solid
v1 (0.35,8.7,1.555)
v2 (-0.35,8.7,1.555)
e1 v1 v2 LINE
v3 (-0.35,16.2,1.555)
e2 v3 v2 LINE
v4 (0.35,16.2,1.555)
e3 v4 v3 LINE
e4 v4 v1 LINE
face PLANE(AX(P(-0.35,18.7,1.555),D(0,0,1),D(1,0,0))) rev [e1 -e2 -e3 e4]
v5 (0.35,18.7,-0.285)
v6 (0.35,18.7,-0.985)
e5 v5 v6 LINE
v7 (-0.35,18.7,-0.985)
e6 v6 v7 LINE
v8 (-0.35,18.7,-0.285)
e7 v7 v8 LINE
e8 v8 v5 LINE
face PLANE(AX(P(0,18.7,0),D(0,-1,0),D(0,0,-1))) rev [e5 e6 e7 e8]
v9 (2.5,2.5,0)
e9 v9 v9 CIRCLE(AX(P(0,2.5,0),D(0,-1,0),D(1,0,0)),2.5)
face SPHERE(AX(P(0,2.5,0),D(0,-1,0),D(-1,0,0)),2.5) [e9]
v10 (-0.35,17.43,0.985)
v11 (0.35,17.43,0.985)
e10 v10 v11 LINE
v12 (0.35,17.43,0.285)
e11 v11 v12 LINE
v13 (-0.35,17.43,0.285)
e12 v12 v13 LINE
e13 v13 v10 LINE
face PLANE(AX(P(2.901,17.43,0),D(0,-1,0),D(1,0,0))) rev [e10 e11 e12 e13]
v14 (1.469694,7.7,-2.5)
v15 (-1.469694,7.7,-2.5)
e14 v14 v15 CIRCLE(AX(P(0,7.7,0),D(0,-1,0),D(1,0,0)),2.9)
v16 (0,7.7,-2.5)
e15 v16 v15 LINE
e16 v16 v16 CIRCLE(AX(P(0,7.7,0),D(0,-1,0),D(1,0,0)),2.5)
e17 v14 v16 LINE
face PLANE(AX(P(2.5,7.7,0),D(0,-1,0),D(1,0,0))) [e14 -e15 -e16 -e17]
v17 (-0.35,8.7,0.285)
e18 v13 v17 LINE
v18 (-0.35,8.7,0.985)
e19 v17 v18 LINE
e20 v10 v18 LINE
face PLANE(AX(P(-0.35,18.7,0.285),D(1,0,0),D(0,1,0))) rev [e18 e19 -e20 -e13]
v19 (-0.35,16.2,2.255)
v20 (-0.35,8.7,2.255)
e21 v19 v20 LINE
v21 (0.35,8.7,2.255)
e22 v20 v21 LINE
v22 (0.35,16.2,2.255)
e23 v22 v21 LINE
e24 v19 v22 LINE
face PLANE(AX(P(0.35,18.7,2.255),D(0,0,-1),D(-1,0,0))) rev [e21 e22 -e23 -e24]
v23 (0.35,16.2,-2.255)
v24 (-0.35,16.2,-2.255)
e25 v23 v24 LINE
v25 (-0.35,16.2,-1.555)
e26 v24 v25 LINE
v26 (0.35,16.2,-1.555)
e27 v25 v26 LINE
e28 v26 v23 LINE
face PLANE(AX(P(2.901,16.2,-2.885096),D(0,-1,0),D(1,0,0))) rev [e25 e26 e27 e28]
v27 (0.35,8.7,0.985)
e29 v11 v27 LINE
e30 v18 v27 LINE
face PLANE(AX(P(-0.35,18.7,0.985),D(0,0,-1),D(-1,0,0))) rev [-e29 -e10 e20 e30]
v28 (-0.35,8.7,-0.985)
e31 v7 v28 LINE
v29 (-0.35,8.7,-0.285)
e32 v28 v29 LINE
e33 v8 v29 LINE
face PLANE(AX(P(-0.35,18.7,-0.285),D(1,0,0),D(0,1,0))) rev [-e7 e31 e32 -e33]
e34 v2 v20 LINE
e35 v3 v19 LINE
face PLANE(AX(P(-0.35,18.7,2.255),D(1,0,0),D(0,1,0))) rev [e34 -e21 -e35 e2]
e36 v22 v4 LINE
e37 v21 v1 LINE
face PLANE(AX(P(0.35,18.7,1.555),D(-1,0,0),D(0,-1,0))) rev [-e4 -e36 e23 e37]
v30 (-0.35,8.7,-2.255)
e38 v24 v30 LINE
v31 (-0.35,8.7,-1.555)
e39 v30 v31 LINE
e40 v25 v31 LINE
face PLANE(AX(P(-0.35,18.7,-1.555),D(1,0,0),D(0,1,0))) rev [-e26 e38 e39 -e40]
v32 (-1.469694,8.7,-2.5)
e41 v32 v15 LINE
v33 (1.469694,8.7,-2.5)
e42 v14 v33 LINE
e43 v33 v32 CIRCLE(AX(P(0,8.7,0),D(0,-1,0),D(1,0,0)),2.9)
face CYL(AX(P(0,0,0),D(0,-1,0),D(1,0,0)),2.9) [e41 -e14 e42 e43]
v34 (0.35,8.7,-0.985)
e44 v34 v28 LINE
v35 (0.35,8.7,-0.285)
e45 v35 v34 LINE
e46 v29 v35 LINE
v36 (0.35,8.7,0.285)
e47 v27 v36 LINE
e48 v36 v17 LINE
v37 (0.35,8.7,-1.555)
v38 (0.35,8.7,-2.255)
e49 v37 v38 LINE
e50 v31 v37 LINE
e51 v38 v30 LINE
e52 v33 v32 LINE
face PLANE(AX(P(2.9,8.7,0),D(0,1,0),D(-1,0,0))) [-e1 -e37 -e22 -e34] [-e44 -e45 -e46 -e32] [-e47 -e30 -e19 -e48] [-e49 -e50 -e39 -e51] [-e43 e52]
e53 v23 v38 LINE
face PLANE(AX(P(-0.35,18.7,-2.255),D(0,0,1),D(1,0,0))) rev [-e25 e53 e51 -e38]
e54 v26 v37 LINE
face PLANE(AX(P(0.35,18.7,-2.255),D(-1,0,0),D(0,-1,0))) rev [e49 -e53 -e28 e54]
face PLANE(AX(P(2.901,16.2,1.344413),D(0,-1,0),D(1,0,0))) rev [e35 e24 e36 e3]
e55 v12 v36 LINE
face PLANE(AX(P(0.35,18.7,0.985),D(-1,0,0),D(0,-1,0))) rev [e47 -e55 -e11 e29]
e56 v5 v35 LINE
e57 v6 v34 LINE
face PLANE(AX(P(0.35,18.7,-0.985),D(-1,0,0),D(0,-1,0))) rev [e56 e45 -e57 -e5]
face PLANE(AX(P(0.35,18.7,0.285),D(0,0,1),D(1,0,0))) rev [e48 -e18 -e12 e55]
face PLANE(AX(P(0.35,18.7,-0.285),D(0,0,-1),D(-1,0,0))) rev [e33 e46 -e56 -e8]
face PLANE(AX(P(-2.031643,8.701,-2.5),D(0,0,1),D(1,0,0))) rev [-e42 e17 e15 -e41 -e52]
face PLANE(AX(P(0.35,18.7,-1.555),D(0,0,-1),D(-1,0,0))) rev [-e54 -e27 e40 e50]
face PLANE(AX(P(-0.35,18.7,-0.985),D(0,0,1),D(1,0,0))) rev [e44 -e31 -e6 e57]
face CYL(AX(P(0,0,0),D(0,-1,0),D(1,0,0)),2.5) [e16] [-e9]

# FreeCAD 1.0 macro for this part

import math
import FreeCAD as App
import Part
import Sketcher


def add_polygon(sketch, points):
    """Adds a closed chain of lines whose ends are joined by coincident constraints."""
    first, n = sketch.GeometryCount, len(points)
    for a, b in zip(points, points[1:] + points[:1]):
        sketch.addGeometry(Part.LineSegment(App.Vector(*a, 0), App.Vector(*b, 0)), False)
    for i in range(n):
        sketch.addConstraint(Sketcher.Constraint("Coincident", first + i, 2, first + (i + 1) % n, 1))

doc = App.newDocument("Part")
body = doc.addObject("PartDesign::Body", "Body")

# Sketch on XY plane
sketch1 = doc.addObject("Sketcher::SketchObject", "Sketch")
body.addObject(sketch1)
sketch1.AttachmentSupport = (doc.XY_Plane, [""])
sketch1.MapMode = "FlatFace"
sketch1.addGeometry(Part.LineSegment(App.Vector(2.5, 2.5, 0), App.Vector(2.5, 7.7, 0)), False)
sketch1.addGeometry(Part.LineSegment(App.Vector(2.5, 7.7, 0), App.Vector(2.9, 7.7, 0)), False)
sketch1.addGeometry(Part.LineSegment(App.Vector(2.9, 7.7, 0), App.Vector(2.9, 8.7, 0)), False)
sketch1.addGeometry(Part.LineSegment(App.Vector(2.9, 8.7, 0), App.Vector(0, 8.7, 0)), False)
sketch1.addGeometry(Part.LineSegment(App.Vector(0, 8.7, 0), App.Vector(0, 0, 0)), False)
sketch1.addGeometry(Part.ArcOfCircle(Part.Circle(App.Vector(0, 2.5, 0), App.Vector(0, 0, 1), 2.5), math.radians(-90), math.radians(0)), False)
sketch1.addConstraint(Sketcher.Constraint("Coincident", 0, 2, 1, 1))
sketch1.addConstraint(Sketcher.Constraint("Coincident", 1, 2, 2, 1))
sketch1.addConstraint(Sketcher.Constraint("Coincident", 2, 2, 3, 1))
sketch1.addConstraint(Sketcher.Constraint("Coincident", 3, 2, 4, 1))
sketch1.addConstraint(Sketcher.Constraint("Coincident", 4, 2, 5, 1))
sketch1.addConstraint(Sketcher.Constraint("Tangent", 5, 2, 0, 1))
sketch1.addConstraint(Sketcher.Constraint("Vertical", 0))
sketch1.addConstraint(Sketcher.Constraint("Horizontal", 1))
sketch1.addConstraint(Sketcher.Constraint("Vertical", 2))
sketch1.addConstraint(Sketcher.Constraint("Horizontal", 3))
sketch1.addConstraint(Sketcher.Constraint("Vertical", 4))
sketch1.addConstraint(Sketcher.Constraint("Coincident", 4, 2, -1, 1))
sketch1.addConstraint(Sketcher.Constraint("PointOnObject", 5, 3, -2))
sketch1.addConstraint(Sketcher.Constraint("Radius", 5, 2.5))
sketch1.addConstraint(Sketcher.Constraint("DistanceY", 2, 1, 2, 2, 1.0))
sketch1.addConstraint(Sketcher.Constraint("DistanceX", 1, 1, 1, 2, 0.4))
sketch1.addConstraint(Sketcher.Constraint("DistanceY", 0, 1, 0, 2, 5.2))
revolution = doc.addObject("PartDesign::Revolution", "Revolution")
body.addObject(revolution)
revolution.Profile = sketch1
revolution.ReferenceAxis = (sketch1, ["V_Axis"])
revolution.Angle = 360

# Sketch on XZ plane
sketch2 = doc.addObject("Sketcher::SketchObject", "Sketch001")
body.addObject(sketch2)
sketch2.AttachmentSupport = (doc.XZ_Plane, [""])
sketch2.MapMode = "FlatFace"
sketch2.AttachmentOffset = App.Placement(App.Vector(0, 0, -7.7), App.Rotation())
add_polygon(sketch2, [(2.119176, -2.5), (-2.031643, -2.5), (0.304277, -5.415797)])  # lines 0-2
sketch2.addConstraint(Sketcher.Constraint("Horizontal", 0))
sketch2.addConstraint(Sketcher.Constraint("DistanceY", 0, 2, -1, 1, 2.5))
sketch2.addConstraint(Sketcher.Constraint("DistanceX", 0, 2, 0, 1, 4.150819))
sketch2.addConstraint(Sketcher.Constraint("DistanceX", 1, 2, 2, 2, 1.814898))
sketch2.addConstraint(Sketcher.Constraint("Distance", 2, 3.434491))
sketch2.addConstraint(Sketcher.Constraint("DistanceX", 0, 2, -1, 1, 2.031643))
pocket1 = doc.addObject("PartDesign::Pocket", "Pocket")
body.addObject(pocket1)
pocket1.Profile = sketch2
pocket1.Length = 1

# Sketch on XZ plane
sketch3 = doc.addObject("Sketcher::SketchObject", "Sketch002")
body.addObject(sketch3)
sketch3.AttachmentSupport = (doc.XZ_Plane, [""])
sketch3.MapMode = "FlatFace"
sketch3.AttachmentOffset = App.Placement(App.Vector(0, 0, -8.7), App.Rotation())
add_polygon(sketch3, [(-0.35, -2.255), (-0.35, -1.555), (0.35, -1.555), (0.35, -2.255)])  # lines 0-3
add_polygon(sketch3, [(-0.35, 0.285), (-0.35, 0.985), (0.35, 0.985), (0.35, 0.285)])  # lines 4-7
add_polygon(sketch3, [(-0.35, 1.555), (-0.35, 2.255), (0.35, 2.255), (0.35, 1.555)])  # lines 8-11
add_polygon(sketch3, [(-0.35, -0.985), (-0.35, -0.285), (0.35, -0.285), (0.35, -0.985)])  # lines 12-15
sketch3.addConstraint(Sketcher.Constraint("Vertical", 0))
sketch3.addConstraint(Sketcher.Constraint("Horizontal", 1))
sketch3.addConstraint(Sketcher.Constraint("Vertical", 2))
sketch3.addConstraint(Sketcher.Constraint("Horizontal", 3))
sketch3.addConstraint(Sketcher.Constraint("Vertical", 4))
sketch3.addConstraint(Sketcher.Constraint("Horizontal", 5))
sketch3.addConstraint(Sketcher.Constraint("Vertical", 6))
sketch3.addConstraint(Sketcher.Constraint("Horizontal", 7))
sketch3.addConstraint(Sketcher.Constraint("Vertical", 8))
sketch3.addConstraint(Sketcher.Constraint("Horizontal", 9))
sketch3.addConstraint(Sketcher.Constraint("Vertical", 10))
sketch3.addConstraint(Sketcher.Constraint("Horizontal", 11))
sketch3.addConstraint(Sketcher.Constraint("Vertical", 12))
sketch3.addConstraint(Sketcher.Constraint("Horizontal", 13))
sketch3.addConstraint(Sketcher.Constraint("Vertical", 14))
sketch3.addConstraint(Sketcher.Constraint("Horizontal", 15))
sketch3.addConstraint(Sketcher.Constraint("Symmetric", 2, 2, 8, 2, -1, 1))
sketch3.addConstraint(Sketcher.Constraint("Symmetric", 0, 2, 10, 2, -1, 1))
sketch3.addConstraint(Sketcher.Constraint("Symmetric", 6, 2, 12, 2, -1, 1))
sketch3.addConstraint(Sketcher.Constraint("Symmetric", 4, 2, 14, 2, -1, 1))
sketch3.addConstraint(Sketcher.Constraint("Vertical", 3, 2, 4, 2))
sketch3.addConstraint(Sketcher.Constraint("Vertical", 2, 2, 5, 2))
sketch3.addConstraint(Sketcher.Constraint("Vertical", 7, 2, 8, 2))
sketch3.addConstraint(Sketcher.Constraint("Equal", 15, 0))
sketch3.addConstraint(Sketcher.Constraint("Equal", 2, 4))
sketch3.addConstraint(Sketcher.Constraint("DistanceX", 1, 1, 1, 2, 0.7))
sketch3.addConstraint(Sketcher.Constraint("DistanceY", 0, 2, 4, 2, 2.54))
sketch3.addConstraint(Sketcher.Constraint("DistanceY", 4, 2, 8, 2, 1.27))
pad1 = doc.addObject("PartDesign::Pad", "Pad")
body.addObject(pad1)
pad1.Profile = sketch3
pad1.Length = 10
pad1.Reversed = True

# Sketch on YZ plane
sketch4 = doc.addObject("Sketcher::SketchObject", "Sketch003")
body.addObject(sketch4)
sketch4.AttachmentSupport = (doc.YZ_Plane, [""])
sketch4.MapMode = "FlatFace"
sketch4.AttachmentOffset = App.Placement(App.Vector(0, 0, 2.9), App.Rotation())
add_polygon(sketch4, [(16.2, -2.885096), (16.2, -1.265658), (33.921908, -1.265658), (33.921908, 0), (17.43, 0), (17.43, 1.344413), (16.2, 1.344413), (16.2, 2.897513), (34.676887, 2.897513), (34.676887, -2.885096)])  # lines 0-9
sketch4.addConstraint(Sketcher.Constraint("Vertical", 0))
sketch4.addConstraint(Sketcher.Constraint("Horizontal", 1))
sketch4.addConstraint(Sketcher.Constraint("Vertical", 2))
sketch4.addConstraint(Sketcher.Constraint("Horizontal", 3))
sketch4.addConstraint(Sketcher.Constraint("Vertical", 4))
sketch4.addConstraint(Sketcher.Constraint("Horizontal", 5))
sketch4.addConstraint(Sketcher.Constraint("Vertical", 6))
sketch4.addConstraint(Sketcher.Constraint("Horizontal", 7))
sketch4.addConstraint(Sketcher.Constraint("Vertical", 8))
sketch4.addConstraint(Sketcher.Constraint("Horizontal", 9))
sketch4.addConstraint(Sketcher.Constraint("PointOnObject", 2, 2, -1))
sketch4.addConstraint(Sketcher.Constraint("Vertical", 0, 2, 5, 2))
sketch4.addConstraint(Sketcher.Constraint("DistanceX", 5, 2, 5, 1, 1.23))
sketch4.addConstraint(Sketcher.Constraint("DistanceX", -1, 1, 0, 2, 16.2))
sketch4.addConstraint(Sketcher.Constraint("DistanceY", 6, 1, 6, 2, 1.5531))
sketch4.addConstraint(Sketcher.Constraint("DistanceY", 0, 1, 0, 2, 1.619438))
sketch4.addConstraint(Sketcher.Constraint("DistanceY", 8, 2, 8, 1, 5.782608))
sketch4.addConstraint(Sketcher.Constraint("DistanceX", 1, 1, 1, 2, 17.721908))
sketch4.addConstraint(Sketcher.Constraint("DistanceX", 7, 1, 7, 2, 18.476887))
sketch4.addConstraint(Sketcher.Constraint("DistanceY", 2, 1, 2, 2, 1.265658))
pocket2 = doc.addObject("PartDesign::Pocket", "Pocket001")
body.addObject(pocket2)
pocket2.Profile = sketch4
pocket2.Length = 5.8

doc.recompute()
